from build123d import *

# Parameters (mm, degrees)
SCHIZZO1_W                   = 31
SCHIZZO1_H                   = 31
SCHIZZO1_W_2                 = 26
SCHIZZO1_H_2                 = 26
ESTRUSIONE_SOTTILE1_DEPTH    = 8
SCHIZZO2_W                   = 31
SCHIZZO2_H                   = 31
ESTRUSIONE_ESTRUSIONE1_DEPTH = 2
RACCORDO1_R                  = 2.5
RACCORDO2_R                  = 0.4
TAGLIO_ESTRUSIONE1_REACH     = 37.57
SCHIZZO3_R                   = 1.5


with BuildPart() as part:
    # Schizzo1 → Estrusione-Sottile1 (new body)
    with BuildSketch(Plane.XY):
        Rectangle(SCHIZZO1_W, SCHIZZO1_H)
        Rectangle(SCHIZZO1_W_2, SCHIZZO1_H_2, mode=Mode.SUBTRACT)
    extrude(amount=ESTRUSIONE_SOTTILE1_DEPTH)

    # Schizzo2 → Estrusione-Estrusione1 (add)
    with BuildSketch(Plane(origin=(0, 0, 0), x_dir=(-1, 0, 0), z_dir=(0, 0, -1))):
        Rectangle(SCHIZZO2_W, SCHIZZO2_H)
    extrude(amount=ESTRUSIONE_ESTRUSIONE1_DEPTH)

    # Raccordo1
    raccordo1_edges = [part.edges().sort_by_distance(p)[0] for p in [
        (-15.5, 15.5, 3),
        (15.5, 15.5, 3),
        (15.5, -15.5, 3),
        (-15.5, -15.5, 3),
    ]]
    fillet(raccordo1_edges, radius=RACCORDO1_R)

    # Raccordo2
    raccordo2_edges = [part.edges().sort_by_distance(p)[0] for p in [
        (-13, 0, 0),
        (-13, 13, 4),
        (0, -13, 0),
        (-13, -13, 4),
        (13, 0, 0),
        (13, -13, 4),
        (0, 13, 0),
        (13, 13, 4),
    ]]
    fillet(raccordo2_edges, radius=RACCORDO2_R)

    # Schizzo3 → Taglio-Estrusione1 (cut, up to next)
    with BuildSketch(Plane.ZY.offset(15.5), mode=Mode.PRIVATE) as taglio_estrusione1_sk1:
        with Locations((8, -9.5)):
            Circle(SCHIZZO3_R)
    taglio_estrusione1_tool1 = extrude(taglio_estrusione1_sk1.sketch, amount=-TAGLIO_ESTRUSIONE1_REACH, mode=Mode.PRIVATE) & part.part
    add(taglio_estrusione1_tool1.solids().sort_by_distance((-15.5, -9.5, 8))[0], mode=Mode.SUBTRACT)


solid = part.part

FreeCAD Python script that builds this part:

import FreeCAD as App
import Part
import Sketcher

V = App.Vector


def edges_at(feature, points):
    """Names of the edges that pass closest to the given points."""
    edges = feature.Shape.Edges
    near = lambda p: min(range(len(edges)), key=lambda i: edges[i].distToShape(Part.Vertex(*p))[0])
    return sorted({f"Edge{near(p) + 1}" for p in points})


def add_polygon(sketch, points):
    """Adds a closed chain of lines whose ends are joined by coincident constraints."""
    first, n = sketch.GeometryCount, len(points)
    for a, b in zip(points, points[1:] + points[:1]):
        sketch.addGeometry(Part.LineSegment(App.Vector(*a, 0), App.Vector(*b, 0)), False)
    for i in range(n):
        sketch.addConstraint(Sketcher.Constraint("Coincident", first + i, 2, first + (i + 1) % n, 1))

doc = App.newDocument("Part")
body = doc.addObject("PartDesign::Body", "Body")

sketch1 = body.newObject("Sketcher::SketchObject", "Sketch")
sketch1.AttachmentSupport = (doc.getObject("XY_Plane"), [""])
sketch1.MapMode = "FlatFace"
add_polygon(sketch1, [(-15.5, 15.5), (-15.5, -15.5), (15.5, -15.5), (15.5, 15.5)])
add_polygon(sketch1, [(13, -13), (-13, -13), (-13, 13), (13, 13)])
sketch1.addConstraint([
    Sketcher.Constraint("Vertical", 0),
    Sketcher.Constraint("Horizontal", 1),
    Sketcher.Constraint("Vertical", 2),
    Sketcher.Constraint("Horizontal", 3),
    Sketcher.Constraint("Horizontal", 4),
    Sketcher.Constraint("Vertical", 5),
    Sketcher.Constraint("Horizontal", 6),
    Sketcher.Constraint("Vertical", 7),
    Sketcher.Constraint("Symmetric", 0, 2, 2, 2, -1, 1),
    Sketcher.Constraint("Symmetric", 4, 2, 6, 2, -1, 1),
    Sketcher.Constraint("Equal", 3, 0),
    Sketcher.Constraint("Equal", 6, 5),
    Sketcher.Constraint("DistanceX", 1, 1, 1, 2, 31.0),
    Sketcher.Constraint("DistanceX", 4, 2, 4, 1, 26.0),
])
pad1 = body.newObject("PartDesign::Pad", "Pad")
pad1.Profile = sketch1
pad1.Length = 8

sketch2 = body.newObject("Sketcher::SketchObject", "Sketch001")
sketch2.AttachmentSupport = (doc.getObject("XY_Plane"), [""])
sketch2.MapMode = "FlatFace"
add_polygon(sketch2, [(15.5, 15.5), (15.5, -15.5), (-15.5, -15.5), (-15.5, 15.5)])
sketch2.addConstraint([
    Sketcher.Constraint("Vertical", 0),
    Sketcher.Constraint("Horizontal", 1),
    Sketcher.Constraint("Vertical", 2),
    Sketcher.Constraint("Horizontal", 3),
    Sketcher.Constraint("Symmetric", 0, 2, 2, 2, -1, 1),
    Sketcher.Constraint("Equal", 3, 0),
    Sketcher.Constraint("DistanceX", 1, 2, 1, 1, 31.0),
])
pad2 = body.newObject("PartDesign::Pad", "Pad001")
pad2.Profile = sketch2
pad2.Length = 2
pad2.Reversed = True
doc.recompute()

fillet = body.newObject("PartDesign::Fillet", "Fillet")
fillet.Base = (pad2, edges_at(pad2, [
    (-15.5, 15.5, 3),
    (15.5, 15.5, 3),
    (15.5, -15.5, 3),
    (-15.5, -15.5, 3),
]))
fillet.Radius = 2.5
doc.recompute()

fillet2 = body.newObject("PartDesign::Fillet", "Fillet001")
fillet2.Base = (fillet, edges_at(fillet, [
    (-13, 0, 0),
    (-13, 13, 4),
    (0, -13, 0),
    (-13, -13, 4),
    (13, 0, 0),
    (13, -13, 4),
    (0, 13, 0),
    (13, 13, 4),
]))
fillet2.Radius = 0.4

sketch3 = body.newObject("Sketcher::SketchObject", "Sketch002")
sketch3.AttachmentSupport = (doc.getObject("YZ_Plane"), [""])
sketch3.MapMode = "FlatFace"
sketch3.AttachmentOffset = App.Placement(V(0, 0, -15.5), App.Rotation())
sketch3.addGeometry(Part.Circle(V(-9.5, 8, 0), V(0, 0, 1), 1.5), False)
sketch3.addConstraint([
    Sketcher.Constraint("Diameter", 0, 3.0),
    Sketcher.Constraint("DistanceY", -1, 1, 0, 3, 8.0),
    Sketcher.Constraint("DistanceX", 0, 3, -1, 1, 9.5),
])
pocket1 = body.newObject("PartDesign::Pocket", "Pocket")
pocket1.Profile = sketch3
pocket1.Type = "UpToFirst"
pocket1.Reversed = True

doc.recompute()
